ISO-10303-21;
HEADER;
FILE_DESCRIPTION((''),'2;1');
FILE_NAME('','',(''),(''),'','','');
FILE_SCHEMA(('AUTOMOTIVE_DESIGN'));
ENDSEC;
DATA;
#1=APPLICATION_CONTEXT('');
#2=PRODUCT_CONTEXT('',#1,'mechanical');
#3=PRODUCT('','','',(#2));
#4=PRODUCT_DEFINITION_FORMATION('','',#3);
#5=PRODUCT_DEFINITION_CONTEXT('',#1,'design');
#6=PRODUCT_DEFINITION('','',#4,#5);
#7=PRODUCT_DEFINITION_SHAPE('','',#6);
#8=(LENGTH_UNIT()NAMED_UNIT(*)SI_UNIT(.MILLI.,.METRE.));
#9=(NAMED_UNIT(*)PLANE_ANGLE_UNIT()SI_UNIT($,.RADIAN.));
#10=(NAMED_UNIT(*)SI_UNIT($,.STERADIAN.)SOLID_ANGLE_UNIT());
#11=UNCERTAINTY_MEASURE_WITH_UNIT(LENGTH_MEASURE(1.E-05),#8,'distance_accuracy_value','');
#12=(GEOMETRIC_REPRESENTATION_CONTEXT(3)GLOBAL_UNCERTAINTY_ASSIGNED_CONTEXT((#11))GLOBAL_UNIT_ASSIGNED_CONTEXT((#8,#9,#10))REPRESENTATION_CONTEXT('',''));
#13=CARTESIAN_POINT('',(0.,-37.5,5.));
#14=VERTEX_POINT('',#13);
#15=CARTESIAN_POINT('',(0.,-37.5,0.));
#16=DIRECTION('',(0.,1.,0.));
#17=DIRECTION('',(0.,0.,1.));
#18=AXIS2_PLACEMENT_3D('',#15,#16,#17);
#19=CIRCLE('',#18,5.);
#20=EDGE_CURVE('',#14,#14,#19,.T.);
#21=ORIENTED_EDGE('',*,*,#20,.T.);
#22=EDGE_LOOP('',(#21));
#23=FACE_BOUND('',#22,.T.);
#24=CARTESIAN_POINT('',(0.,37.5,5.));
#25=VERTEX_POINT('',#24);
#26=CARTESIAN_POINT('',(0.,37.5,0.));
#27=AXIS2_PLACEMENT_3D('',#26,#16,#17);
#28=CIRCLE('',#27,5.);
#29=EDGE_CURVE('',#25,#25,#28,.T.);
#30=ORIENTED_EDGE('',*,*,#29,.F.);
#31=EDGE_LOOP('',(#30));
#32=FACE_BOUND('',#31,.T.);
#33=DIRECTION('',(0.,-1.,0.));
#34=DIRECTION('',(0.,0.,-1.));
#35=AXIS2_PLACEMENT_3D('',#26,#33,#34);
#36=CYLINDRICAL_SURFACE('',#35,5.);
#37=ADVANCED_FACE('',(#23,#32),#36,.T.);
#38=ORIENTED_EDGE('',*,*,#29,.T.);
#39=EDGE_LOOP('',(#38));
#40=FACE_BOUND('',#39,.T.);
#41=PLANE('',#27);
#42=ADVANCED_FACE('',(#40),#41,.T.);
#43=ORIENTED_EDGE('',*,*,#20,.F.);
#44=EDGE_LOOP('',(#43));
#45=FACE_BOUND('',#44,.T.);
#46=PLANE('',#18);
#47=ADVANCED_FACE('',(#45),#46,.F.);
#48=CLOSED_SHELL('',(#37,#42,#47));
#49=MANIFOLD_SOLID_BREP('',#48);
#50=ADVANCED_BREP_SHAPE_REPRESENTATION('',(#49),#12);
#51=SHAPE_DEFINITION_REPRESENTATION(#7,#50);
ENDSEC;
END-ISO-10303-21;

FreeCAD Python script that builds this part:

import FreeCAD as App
import Part
import Sketcher

V = App.Vector
Q = App.Units.Quantity

doc = App.newDocument("Part")
body = doc.addObject("PartDesign::Body", "Body")

# Sketch on XZ plane
sketch1 = body.newObject("Sketcher::SketchObject", "Sketch")
sketch1.AttachmentSupport = (doc.getObject("XZ_Plane"), [""])
sketch1.MapMode = "FlatFace"
sketch1.addGeometry(Part.Circle(V(0, 0, 0), V(0, 0, 1), 5), False)
sketch1.addConstraint([
    Sketcher.Constraint("Coincident", 0, 3, -1, 1),
    Sketcher.Constraint("Diameter", 0, Q("10 mm")),
])
pad1 = body.newObject("PartDesign::Pad", "Pad")
pad1.Profile = sketch1
pad1.Length = 75
pad1.Midplane = True

doc.recompute()
